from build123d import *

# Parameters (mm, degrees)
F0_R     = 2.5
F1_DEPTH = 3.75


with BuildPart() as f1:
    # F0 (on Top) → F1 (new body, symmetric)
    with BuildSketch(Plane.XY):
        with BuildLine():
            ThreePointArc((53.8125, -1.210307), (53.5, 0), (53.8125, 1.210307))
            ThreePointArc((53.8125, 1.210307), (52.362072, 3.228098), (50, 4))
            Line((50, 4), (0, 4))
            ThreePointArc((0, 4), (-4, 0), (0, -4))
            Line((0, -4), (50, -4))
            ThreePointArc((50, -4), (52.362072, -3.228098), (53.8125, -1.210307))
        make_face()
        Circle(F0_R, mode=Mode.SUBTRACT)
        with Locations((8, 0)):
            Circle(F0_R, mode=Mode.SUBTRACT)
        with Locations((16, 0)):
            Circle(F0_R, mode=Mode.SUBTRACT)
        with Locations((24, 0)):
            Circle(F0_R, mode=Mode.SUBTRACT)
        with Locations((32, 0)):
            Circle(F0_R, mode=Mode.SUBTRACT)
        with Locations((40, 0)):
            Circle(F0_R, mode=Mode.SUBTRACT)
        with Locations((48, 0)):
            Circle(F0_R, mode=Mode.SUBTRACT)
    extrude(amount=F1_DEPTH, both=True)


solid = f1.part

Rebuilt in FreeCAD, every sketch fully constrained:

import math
import FreeCAD as App
import Part
import Sketcher
from FreeCAD import Vector
Q = App.Units.Quantity

doc = App.newDocument("Part")
body = doc.addObject("PartDesign::Body", "Body")

# Sketch on XY plane
sketch1 = body.newObject("Sketcher::SketchObject", "Sketch")
sketch1.AttachmentSupport = (doc.getObject("XY_Plane"), [""])
sketch1.MapMode = "FlatFace"
sketch1.addGeometry(Part.ArcOfCircle(Part.Circle(Vector(55.999999, 0, 0), Vector(0, 0, 1), 2.499999), math.radians(151.044969), math.radians(208.955031)), False)
sketch1.addGeometry(Part.ArcOfCircle(Part.Circle(Vector(50, 0.000001, 0), Vector(0, 0, 1), 3.999999), math.radians(17.612428), math.radians(90.000006)), False)
sketch1.addGeometry(Part.LineSegment(Vector(50, 4, 0), Vector(0, 4, 0)), False)
sketch1.addGeometry(Part.ArcOfCircle(Part.Circle(Vector(0, 0, 0), Vector(0, 0, 1), 4), math.radians(90), math.radians(270)), False)
sketch1.addGeometry(Part.LineSegment(Vector(0, -4, 0), Vector(50, -4, 0)), False)
sketch1.addGeometry(Part.ArcOfCircle(Part.Circle(Vector(50, -0.000001, 0), Vector(0, 0, 1), 3.999999), math.radians(-90.000006), math.radians(-17.612428)), False)
sketch1.addGeometry(Part.Circle(Vector(0, 0, 0), Vector(0, 0, 1), 2.5), False)
sketch1.addGeometry(Part.Circle(Vector(8, 0, 0), Vector(0, 0, 1), 2.5), False)
sketch1.addGeometry(Part.Circle(Vector(16, 0, 0), Vector(0, 0, 1), 2.5), False)
sketch1.addGeometry(Part.Circle(Vector(24, 0, 0), Vector(0, 0, 1), 2.5), False)
sketch1.addGeometry(Part.Circle(Vector(32, 0, 0), Vector(0, 0, 1), 2.5), False)
sketch1.addGeometry(Part.Circle(Vector(40, 0, 0), Vector(0, 0, 1), 2.5), False)
sketch1.addGeometry(Part.Circle(Vector(48, 0, 0), Vector(0, 0, 1), 2.5), False)
sketch1.addConstraint(Sketcher.Constraint("Coincident", 0, 1, 1, 1))
sketch1.addConstraint(Sketcher.Constraint("Tangent", 1, 2, 2, 1))
sketch1.addConstraint(Sketcher.Constraint("Tangent", 2, 2, 3, 1))
sketch1.addConstraint(Sketcher.Constraint("Tangent", 3, 2, 4, 1))
sketch1.addConstraint(Sketcher.Constraint("Tangent", 4, 2, 5, 1))
sketch1.addConstraint(Sketcher.Constraint("Coincident", 5, 2, 0, 2))
sketch1.addConstraint(Sketcher.Constraint("Horizontal", 2))
sketch1.addConstraint(Sketcher.Constraint("Horizontal", 4))
sketch1.addConstraint(Sketcher.Constraint("Coincident", 3, 3, -1, 1))
sketch1.addConstraint(Sketcher.Constraint("Coincident", 6, 3, -1, 1))
sketch1.addConstraint(Sketcher.Constraint("Coincident", 5, 3, 1, 3))
sketch1.addConstraint(Sketcher.Constraint("Equal", 1, 3))
sketch1.addConstraint(Sketcher.Constraint("Equal", 0, 6))
sketch1.addConstraint(Sketcher.Constraint("Equal", 6, 7))
sketch1.addConstraint(Sketcher.Constraint("Equal", 7, 8))
sketch1.addConstraint(Sketcher.Constraint("Equal", 8, 9))
sketch1.addConstraint(Sketcher.Constraint("Equal", 9, 10))
sketch1.addConstraint(Sketcher.Constraint("Equal", 10, 11))
sketch1.addConstraint(Sketcher.Constraint("Equal", 11, 12))
sketch1.addConstraint(Sketcher.Constraint("PointOnObject", 0, 3, -1))
sketch1.addConstraint(Sketcher.Constraint("PointOnObject", 7, 3, -1))
sketch1.addConstraint(Sketcher.Constraint("PointOnObject", 8, 3, -1))
sketch1.addConstraint(Sketcher.Constraint("PointOnObject", 9, 3, -1))
sketch1.addConstraint(Sketcher.Constraint("PointOnObject", 10, 3, -1))
sketch1.addConstraint(Sketcher.Constraint("PointOnObject", 11, 3, -1))
sketch1.addConstraint(Sketcher.Constraint("PointOnObject", 12, 3, -1))
sketch1.addConstraint(Sketcher.Constraint("Diameter", 6, Q("5 mm")))
sketch1.addConstraint(Sketcher.Constraint("Radius", 1, Q("3.999999 mm")))
sketch1.addConstraint(Sketcher.Constraint("DistanceX", 2, 2, 2, 1, Q("50 mm")))
sketch1.addConstraint(Sketcher.Constraint("DistanceX", -1, 1, 0, 3, Q("55.999999 mm")))
sketch1.addConstraint(Sketcher.Constraint("DistanceX", -1, 1, 7, 3, Q("8 mm")))
sketch1.addConstraint(Sketcher.Constraint("DistanceX", -1, 1, 8, 3, Q("16 mm")))
sketch1.addConstraint(Sketcher.Constraint("DistanceX", -1, 1, 9, 3, Q("24 mm")))
sketch1.addConstraint(Sketcher.Constraint("DistanceX", -1, 1, 10, 3, Q("32 mm")))
sketch1.addConstraint(Sketcher.Constraint("DistanceX", -1, 1, 11, 3, Q("40 mm")))
sketch1.addConstraint(Sketcher.Constraint("DistanceX", -1, 1, 12, 3, Q("48 mm")))
pad1 = body.newObject("PartDesign::Pad", "Pad")
pad1.Profile = sketch1
pad1.Length = 7.5
pad1.Midplane = True

doc.recompute()
